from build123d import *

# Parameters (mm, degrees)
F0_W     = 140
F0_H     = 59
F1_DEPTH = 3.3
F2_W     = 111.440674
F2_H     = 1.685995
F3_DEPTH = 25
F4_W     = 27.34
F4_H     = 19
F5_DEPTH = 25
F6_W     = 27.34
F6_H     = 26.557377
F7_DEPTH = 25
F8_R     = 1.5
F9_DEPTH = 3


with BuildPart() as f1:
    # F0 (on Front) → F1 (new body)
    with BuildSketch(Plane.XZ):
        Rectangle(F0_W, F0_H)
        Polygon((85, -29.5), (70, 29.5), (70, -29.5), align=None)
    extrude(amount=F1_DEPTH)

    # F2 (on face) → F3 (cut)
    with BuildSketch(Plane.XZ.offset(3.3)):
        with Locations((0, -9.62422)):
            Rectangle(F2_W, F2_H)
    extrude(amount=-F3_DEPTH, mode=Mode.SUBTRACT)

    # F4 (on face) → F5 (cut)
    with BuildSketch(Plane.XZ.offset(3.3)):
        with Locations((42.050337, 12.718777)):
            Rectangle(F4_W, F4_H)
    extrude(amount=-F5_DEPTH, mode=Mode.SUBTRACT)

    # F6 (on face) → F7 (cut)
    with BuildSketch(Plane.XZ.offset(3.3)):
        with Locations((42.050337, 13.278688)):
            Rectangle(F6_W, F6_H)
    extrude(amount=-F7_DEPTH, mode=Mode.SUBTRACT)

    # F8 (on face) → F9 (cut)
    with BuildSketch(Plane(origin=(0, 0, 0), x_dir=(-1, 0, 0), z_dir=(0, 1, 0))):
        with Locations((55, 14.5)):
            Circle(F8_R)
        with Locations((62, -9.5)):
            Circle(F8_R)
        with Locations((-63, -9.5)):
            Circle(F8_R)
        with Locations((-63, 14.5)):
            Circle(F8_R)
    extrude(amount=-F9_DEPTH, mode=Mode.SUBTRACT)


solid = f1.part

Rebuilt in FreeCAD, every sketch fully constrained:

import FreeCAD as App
import Part
import Sketcher
from FreeCAD import Vector
Q = App.Units.Quantity


def add_polygon(sketch, points):
    """Adds a closed chain of lines whose ends are joined by coincident constraints."""
    first, n = sketch.GeometryCount, len(points)
    for a, b in zip(points, points[1:] + points[:1]):
        sketch.addGeometry(Part.LineSegment(App.Vector(*a, 0), App.Vector(*b, 0)), False)
    for i in range(n):
        sketch.addConstraint(Sketcher.Constraint("Coincident", first + i, 2, first + (i + 1) % n, 1))

doc = App.newDocument("Part")
body = doc.addObject("PartDesign::Body", "Body")

# Sketch on XZ plane
sketch1 = body.newObject("Sketcher::SketchObject", "Sketch")
sketch1.AttachmentSupport = (doc.getObject("XZ_Plane"), [""])
sketch1.MapMode = "FlatFace"
add_polygon(sketch1, [(-70, 30), (-70, -30), (85, -30), (70, 30)])  # lines 0-3
sketch1.addConstraint([
    Sketcher.Constraint("Vertical", 0),
    Sketcher.Constraint("Horizontal", 1),
    Sketcher.Constraint("Horizontal", 3),
    Sketcher.Constraint("Symmetric", 0, 2, 2, 2, -1, 1),
    Sketcher.Constraint("DistanceX", 1, 1, 1, 2, Q("155 mm")),
    Sketcher.Constraint("DistanceX", 3, 2, 3, 1, Q("140 mm")),
    Sketcher.Constraint("DistanceY", 0, 2, 0, 1, Q("59 mm")),
])
pad1 = body.newObject("PartDesign::Pad", "Pad")
pad1.Profile = sketch1
pad1.Length = 3.3

# Sketch on XZ plane
sketch2 = body.newObject("Sketcher::SketchObject", "Sketch001")
sketch2.AttachmentSupport = (doc.getObject("XZ_Plane"), [""])
sketch2.MapMode = "FlatFace"
sketch2.AttachmentOffset = App.Placement(Vector(0, 0, 3.3), App.Rotation())
add_polygon(sketch2, [(-55.7, -8.8), (-55.7, -10.5), (55.7, -10.5), (55.7, -8.8)])  # lines 0-3
sketch2.addConstraint([
    Sketcher.Constraint("Vertical", 0),
    Sketcher.Constraint("Horizontal", 1),
    Sketcher.Constraint("Vertical", 2),
    Sketcher.Constraint("Horizontal", 3),
    Sketcher.Constraint("DistanceX", 1, 1, 1, 2, Q("111.440674 mm")),
    Sketcher.Constraint("DistanceY", 0, 2, 0, 1, Q("1.685995 mm")),
    Sketcher.Constraint("DistanceX", 0, 2, -1, 1, Q("55.720337 mm")),
    Sketcher.Constraint("DistanceY", 0, 2, -1, 1, Q("10.467218 mm")),
])
pocket1 = body.newObject("PartDesign::Pocket", "Pocket")
pocket1.Profile = sketch2
pocket1.Length = 25

# Sketch on XZ plane
sketch3 = body.newObject("Sketcher::SketchObject", "Sketch002")
sketch3.AttachmentSupport = (doc.getObject("XZ_Plane"), [""])
sketch3.MapMode = "FlatFace"
sketch3.AttachmentOffset = App.Placement(Vector(0, 0, 3.3), App.Rotation())
add_polygon(sketch3, [(28, 22), (28, 3), (56, 3), (56, 22)])  # lines 0-3
sketch3.addConstraint([
    Sketcher.Constraint("Vertical", 0),
    Sketcher.Constraint("Horizontal", 1),
    Sketcher.Constraint("Vertical", 2),
    Sketcher.Constraint("Horizontal", 3),
    Sketcher.Constraint("DistanceY", 0, 2, 0, 1, Q("19 mm")),
    Sketcher.Constraint("DistanceX", 1, 1, 1, 2, Q("27.34 mm")),
    Sketcher.Constraint("DistanceX", -1, 1, 0, 2, Q("28.380337 mm")),
    Sketcher.Constraint("DistanceY", -1, 1, 0, 2, Q("3.218777 mm")),
])
pocket2 = body.newObject("PartDesign::Pocket", "Pocket001")
pocket2.Profile = sketch3
pocket2.Length = 25

# Sketch on XZ plane
sketch4 = body.newObject("Sketcher::SketchObject", "Sketch003")
sketch4.AttachmentSupport = (doc.getObject("XZ_Plane"), [""])
sketch4.MapMode = "FlatFace"
sketch4.AttachmentOffset = App.Placement(Vector(0, 0, 3.3), App.Rotation())
add_polygon(sketch4, [(28, 27), (28, 0), (56, 0), (56, 27)])  # lines 0-3
sketch4.addConstraint([
    Sketcher.Constraint("Vertical", 0),
    Sketcher.Constraint("Horizontal", 1),
    Sketcher.Constraint("Vertical", 2),
    Sketcher.Constraint("Horizontal", 3),
    Sketcher.Constraint("PointOnObject", 0, 2, -1),
    Sketcher.Constraint("DistanceX", 1, 1, 1, 2, Q("27.34 mm")),
    Sketcher.Constraint("DistanceY", 0, 2, 0, 1, Q("26.557377 mm")),
    Sketcher.Constraint("DistanceX", -1, 1, 0, 2, Q("28.380337 mm")),
])
pocket3 = body.newObject("PartDesign::Pocket", "Pocket002")
pocket3.Profile = sketch4
pocket3.Length = 25

# Sketch on XZ plane
sketch5 = body.newObject("Sketcher::SketchObject", "Sketch004")
sketch5.AttachmentSupport = (doc.getObject("XZ_Plane"), [""])
sketch5.MapMode = "FlatFace"
sketch5.addGeometry([
    Part.Circle(Vector(-55, 14.5, 0), Vector(0, 0, 1), 1.5),
    Part.Circle(Vector(-62, -9.5, 0), Vector(0, 0, 1), 1.5),
    Part.Circle(Vector(63, -9.5, 0), Vector(0, 0, 1), 1.5),
    Part.Circle(Vector(63, 14.5, 0), Vector(0, 0, 1), 1.5),
], False)
sketch5.addConstraint([
    Sketcher.Constraint("Equal", 0, 1),
    Sketcher.Constraint("Equal", 1, 2),
    Sketcher.Constraint("Equal", 2, 3),
    Sketcher.Constraint("Horizontal", 1, 3, 2, 3),
    Sketcher.Constraint("Horizontal", 0, 3, 3, 3),
    Sketcher.Constraint("Vertical", 2, 3, 3, 3),
    Sketcher.Constraint("Diameter", 0, Q("3 mm")),
    Sketcher.Constraint("DistanceX", 0, 3, -1, 1, Q("55 mm")),
    Sketcher.Constraint("DistanceX", 1, 3, -1, 1, Q("62 mm")),
    Sketcher.Constraint("DistanceX", -1, 1, 2, 3, Q("63 mm")),
    Sketcher.Constraint("DistanceY", 1, 3, 0, 3, Q("24 mm")),
    Sketcher.Constraint("DistanceY", -1, 1, 0, 3, Q("14.5 mm")),
])
pocket4 = body.newObject("PartDesign::Pocket", "Pocket003")
pocket4.Profile = sketch5
pocket4.Length = 3
pocket4.Reversed = True

doc.recompute()
